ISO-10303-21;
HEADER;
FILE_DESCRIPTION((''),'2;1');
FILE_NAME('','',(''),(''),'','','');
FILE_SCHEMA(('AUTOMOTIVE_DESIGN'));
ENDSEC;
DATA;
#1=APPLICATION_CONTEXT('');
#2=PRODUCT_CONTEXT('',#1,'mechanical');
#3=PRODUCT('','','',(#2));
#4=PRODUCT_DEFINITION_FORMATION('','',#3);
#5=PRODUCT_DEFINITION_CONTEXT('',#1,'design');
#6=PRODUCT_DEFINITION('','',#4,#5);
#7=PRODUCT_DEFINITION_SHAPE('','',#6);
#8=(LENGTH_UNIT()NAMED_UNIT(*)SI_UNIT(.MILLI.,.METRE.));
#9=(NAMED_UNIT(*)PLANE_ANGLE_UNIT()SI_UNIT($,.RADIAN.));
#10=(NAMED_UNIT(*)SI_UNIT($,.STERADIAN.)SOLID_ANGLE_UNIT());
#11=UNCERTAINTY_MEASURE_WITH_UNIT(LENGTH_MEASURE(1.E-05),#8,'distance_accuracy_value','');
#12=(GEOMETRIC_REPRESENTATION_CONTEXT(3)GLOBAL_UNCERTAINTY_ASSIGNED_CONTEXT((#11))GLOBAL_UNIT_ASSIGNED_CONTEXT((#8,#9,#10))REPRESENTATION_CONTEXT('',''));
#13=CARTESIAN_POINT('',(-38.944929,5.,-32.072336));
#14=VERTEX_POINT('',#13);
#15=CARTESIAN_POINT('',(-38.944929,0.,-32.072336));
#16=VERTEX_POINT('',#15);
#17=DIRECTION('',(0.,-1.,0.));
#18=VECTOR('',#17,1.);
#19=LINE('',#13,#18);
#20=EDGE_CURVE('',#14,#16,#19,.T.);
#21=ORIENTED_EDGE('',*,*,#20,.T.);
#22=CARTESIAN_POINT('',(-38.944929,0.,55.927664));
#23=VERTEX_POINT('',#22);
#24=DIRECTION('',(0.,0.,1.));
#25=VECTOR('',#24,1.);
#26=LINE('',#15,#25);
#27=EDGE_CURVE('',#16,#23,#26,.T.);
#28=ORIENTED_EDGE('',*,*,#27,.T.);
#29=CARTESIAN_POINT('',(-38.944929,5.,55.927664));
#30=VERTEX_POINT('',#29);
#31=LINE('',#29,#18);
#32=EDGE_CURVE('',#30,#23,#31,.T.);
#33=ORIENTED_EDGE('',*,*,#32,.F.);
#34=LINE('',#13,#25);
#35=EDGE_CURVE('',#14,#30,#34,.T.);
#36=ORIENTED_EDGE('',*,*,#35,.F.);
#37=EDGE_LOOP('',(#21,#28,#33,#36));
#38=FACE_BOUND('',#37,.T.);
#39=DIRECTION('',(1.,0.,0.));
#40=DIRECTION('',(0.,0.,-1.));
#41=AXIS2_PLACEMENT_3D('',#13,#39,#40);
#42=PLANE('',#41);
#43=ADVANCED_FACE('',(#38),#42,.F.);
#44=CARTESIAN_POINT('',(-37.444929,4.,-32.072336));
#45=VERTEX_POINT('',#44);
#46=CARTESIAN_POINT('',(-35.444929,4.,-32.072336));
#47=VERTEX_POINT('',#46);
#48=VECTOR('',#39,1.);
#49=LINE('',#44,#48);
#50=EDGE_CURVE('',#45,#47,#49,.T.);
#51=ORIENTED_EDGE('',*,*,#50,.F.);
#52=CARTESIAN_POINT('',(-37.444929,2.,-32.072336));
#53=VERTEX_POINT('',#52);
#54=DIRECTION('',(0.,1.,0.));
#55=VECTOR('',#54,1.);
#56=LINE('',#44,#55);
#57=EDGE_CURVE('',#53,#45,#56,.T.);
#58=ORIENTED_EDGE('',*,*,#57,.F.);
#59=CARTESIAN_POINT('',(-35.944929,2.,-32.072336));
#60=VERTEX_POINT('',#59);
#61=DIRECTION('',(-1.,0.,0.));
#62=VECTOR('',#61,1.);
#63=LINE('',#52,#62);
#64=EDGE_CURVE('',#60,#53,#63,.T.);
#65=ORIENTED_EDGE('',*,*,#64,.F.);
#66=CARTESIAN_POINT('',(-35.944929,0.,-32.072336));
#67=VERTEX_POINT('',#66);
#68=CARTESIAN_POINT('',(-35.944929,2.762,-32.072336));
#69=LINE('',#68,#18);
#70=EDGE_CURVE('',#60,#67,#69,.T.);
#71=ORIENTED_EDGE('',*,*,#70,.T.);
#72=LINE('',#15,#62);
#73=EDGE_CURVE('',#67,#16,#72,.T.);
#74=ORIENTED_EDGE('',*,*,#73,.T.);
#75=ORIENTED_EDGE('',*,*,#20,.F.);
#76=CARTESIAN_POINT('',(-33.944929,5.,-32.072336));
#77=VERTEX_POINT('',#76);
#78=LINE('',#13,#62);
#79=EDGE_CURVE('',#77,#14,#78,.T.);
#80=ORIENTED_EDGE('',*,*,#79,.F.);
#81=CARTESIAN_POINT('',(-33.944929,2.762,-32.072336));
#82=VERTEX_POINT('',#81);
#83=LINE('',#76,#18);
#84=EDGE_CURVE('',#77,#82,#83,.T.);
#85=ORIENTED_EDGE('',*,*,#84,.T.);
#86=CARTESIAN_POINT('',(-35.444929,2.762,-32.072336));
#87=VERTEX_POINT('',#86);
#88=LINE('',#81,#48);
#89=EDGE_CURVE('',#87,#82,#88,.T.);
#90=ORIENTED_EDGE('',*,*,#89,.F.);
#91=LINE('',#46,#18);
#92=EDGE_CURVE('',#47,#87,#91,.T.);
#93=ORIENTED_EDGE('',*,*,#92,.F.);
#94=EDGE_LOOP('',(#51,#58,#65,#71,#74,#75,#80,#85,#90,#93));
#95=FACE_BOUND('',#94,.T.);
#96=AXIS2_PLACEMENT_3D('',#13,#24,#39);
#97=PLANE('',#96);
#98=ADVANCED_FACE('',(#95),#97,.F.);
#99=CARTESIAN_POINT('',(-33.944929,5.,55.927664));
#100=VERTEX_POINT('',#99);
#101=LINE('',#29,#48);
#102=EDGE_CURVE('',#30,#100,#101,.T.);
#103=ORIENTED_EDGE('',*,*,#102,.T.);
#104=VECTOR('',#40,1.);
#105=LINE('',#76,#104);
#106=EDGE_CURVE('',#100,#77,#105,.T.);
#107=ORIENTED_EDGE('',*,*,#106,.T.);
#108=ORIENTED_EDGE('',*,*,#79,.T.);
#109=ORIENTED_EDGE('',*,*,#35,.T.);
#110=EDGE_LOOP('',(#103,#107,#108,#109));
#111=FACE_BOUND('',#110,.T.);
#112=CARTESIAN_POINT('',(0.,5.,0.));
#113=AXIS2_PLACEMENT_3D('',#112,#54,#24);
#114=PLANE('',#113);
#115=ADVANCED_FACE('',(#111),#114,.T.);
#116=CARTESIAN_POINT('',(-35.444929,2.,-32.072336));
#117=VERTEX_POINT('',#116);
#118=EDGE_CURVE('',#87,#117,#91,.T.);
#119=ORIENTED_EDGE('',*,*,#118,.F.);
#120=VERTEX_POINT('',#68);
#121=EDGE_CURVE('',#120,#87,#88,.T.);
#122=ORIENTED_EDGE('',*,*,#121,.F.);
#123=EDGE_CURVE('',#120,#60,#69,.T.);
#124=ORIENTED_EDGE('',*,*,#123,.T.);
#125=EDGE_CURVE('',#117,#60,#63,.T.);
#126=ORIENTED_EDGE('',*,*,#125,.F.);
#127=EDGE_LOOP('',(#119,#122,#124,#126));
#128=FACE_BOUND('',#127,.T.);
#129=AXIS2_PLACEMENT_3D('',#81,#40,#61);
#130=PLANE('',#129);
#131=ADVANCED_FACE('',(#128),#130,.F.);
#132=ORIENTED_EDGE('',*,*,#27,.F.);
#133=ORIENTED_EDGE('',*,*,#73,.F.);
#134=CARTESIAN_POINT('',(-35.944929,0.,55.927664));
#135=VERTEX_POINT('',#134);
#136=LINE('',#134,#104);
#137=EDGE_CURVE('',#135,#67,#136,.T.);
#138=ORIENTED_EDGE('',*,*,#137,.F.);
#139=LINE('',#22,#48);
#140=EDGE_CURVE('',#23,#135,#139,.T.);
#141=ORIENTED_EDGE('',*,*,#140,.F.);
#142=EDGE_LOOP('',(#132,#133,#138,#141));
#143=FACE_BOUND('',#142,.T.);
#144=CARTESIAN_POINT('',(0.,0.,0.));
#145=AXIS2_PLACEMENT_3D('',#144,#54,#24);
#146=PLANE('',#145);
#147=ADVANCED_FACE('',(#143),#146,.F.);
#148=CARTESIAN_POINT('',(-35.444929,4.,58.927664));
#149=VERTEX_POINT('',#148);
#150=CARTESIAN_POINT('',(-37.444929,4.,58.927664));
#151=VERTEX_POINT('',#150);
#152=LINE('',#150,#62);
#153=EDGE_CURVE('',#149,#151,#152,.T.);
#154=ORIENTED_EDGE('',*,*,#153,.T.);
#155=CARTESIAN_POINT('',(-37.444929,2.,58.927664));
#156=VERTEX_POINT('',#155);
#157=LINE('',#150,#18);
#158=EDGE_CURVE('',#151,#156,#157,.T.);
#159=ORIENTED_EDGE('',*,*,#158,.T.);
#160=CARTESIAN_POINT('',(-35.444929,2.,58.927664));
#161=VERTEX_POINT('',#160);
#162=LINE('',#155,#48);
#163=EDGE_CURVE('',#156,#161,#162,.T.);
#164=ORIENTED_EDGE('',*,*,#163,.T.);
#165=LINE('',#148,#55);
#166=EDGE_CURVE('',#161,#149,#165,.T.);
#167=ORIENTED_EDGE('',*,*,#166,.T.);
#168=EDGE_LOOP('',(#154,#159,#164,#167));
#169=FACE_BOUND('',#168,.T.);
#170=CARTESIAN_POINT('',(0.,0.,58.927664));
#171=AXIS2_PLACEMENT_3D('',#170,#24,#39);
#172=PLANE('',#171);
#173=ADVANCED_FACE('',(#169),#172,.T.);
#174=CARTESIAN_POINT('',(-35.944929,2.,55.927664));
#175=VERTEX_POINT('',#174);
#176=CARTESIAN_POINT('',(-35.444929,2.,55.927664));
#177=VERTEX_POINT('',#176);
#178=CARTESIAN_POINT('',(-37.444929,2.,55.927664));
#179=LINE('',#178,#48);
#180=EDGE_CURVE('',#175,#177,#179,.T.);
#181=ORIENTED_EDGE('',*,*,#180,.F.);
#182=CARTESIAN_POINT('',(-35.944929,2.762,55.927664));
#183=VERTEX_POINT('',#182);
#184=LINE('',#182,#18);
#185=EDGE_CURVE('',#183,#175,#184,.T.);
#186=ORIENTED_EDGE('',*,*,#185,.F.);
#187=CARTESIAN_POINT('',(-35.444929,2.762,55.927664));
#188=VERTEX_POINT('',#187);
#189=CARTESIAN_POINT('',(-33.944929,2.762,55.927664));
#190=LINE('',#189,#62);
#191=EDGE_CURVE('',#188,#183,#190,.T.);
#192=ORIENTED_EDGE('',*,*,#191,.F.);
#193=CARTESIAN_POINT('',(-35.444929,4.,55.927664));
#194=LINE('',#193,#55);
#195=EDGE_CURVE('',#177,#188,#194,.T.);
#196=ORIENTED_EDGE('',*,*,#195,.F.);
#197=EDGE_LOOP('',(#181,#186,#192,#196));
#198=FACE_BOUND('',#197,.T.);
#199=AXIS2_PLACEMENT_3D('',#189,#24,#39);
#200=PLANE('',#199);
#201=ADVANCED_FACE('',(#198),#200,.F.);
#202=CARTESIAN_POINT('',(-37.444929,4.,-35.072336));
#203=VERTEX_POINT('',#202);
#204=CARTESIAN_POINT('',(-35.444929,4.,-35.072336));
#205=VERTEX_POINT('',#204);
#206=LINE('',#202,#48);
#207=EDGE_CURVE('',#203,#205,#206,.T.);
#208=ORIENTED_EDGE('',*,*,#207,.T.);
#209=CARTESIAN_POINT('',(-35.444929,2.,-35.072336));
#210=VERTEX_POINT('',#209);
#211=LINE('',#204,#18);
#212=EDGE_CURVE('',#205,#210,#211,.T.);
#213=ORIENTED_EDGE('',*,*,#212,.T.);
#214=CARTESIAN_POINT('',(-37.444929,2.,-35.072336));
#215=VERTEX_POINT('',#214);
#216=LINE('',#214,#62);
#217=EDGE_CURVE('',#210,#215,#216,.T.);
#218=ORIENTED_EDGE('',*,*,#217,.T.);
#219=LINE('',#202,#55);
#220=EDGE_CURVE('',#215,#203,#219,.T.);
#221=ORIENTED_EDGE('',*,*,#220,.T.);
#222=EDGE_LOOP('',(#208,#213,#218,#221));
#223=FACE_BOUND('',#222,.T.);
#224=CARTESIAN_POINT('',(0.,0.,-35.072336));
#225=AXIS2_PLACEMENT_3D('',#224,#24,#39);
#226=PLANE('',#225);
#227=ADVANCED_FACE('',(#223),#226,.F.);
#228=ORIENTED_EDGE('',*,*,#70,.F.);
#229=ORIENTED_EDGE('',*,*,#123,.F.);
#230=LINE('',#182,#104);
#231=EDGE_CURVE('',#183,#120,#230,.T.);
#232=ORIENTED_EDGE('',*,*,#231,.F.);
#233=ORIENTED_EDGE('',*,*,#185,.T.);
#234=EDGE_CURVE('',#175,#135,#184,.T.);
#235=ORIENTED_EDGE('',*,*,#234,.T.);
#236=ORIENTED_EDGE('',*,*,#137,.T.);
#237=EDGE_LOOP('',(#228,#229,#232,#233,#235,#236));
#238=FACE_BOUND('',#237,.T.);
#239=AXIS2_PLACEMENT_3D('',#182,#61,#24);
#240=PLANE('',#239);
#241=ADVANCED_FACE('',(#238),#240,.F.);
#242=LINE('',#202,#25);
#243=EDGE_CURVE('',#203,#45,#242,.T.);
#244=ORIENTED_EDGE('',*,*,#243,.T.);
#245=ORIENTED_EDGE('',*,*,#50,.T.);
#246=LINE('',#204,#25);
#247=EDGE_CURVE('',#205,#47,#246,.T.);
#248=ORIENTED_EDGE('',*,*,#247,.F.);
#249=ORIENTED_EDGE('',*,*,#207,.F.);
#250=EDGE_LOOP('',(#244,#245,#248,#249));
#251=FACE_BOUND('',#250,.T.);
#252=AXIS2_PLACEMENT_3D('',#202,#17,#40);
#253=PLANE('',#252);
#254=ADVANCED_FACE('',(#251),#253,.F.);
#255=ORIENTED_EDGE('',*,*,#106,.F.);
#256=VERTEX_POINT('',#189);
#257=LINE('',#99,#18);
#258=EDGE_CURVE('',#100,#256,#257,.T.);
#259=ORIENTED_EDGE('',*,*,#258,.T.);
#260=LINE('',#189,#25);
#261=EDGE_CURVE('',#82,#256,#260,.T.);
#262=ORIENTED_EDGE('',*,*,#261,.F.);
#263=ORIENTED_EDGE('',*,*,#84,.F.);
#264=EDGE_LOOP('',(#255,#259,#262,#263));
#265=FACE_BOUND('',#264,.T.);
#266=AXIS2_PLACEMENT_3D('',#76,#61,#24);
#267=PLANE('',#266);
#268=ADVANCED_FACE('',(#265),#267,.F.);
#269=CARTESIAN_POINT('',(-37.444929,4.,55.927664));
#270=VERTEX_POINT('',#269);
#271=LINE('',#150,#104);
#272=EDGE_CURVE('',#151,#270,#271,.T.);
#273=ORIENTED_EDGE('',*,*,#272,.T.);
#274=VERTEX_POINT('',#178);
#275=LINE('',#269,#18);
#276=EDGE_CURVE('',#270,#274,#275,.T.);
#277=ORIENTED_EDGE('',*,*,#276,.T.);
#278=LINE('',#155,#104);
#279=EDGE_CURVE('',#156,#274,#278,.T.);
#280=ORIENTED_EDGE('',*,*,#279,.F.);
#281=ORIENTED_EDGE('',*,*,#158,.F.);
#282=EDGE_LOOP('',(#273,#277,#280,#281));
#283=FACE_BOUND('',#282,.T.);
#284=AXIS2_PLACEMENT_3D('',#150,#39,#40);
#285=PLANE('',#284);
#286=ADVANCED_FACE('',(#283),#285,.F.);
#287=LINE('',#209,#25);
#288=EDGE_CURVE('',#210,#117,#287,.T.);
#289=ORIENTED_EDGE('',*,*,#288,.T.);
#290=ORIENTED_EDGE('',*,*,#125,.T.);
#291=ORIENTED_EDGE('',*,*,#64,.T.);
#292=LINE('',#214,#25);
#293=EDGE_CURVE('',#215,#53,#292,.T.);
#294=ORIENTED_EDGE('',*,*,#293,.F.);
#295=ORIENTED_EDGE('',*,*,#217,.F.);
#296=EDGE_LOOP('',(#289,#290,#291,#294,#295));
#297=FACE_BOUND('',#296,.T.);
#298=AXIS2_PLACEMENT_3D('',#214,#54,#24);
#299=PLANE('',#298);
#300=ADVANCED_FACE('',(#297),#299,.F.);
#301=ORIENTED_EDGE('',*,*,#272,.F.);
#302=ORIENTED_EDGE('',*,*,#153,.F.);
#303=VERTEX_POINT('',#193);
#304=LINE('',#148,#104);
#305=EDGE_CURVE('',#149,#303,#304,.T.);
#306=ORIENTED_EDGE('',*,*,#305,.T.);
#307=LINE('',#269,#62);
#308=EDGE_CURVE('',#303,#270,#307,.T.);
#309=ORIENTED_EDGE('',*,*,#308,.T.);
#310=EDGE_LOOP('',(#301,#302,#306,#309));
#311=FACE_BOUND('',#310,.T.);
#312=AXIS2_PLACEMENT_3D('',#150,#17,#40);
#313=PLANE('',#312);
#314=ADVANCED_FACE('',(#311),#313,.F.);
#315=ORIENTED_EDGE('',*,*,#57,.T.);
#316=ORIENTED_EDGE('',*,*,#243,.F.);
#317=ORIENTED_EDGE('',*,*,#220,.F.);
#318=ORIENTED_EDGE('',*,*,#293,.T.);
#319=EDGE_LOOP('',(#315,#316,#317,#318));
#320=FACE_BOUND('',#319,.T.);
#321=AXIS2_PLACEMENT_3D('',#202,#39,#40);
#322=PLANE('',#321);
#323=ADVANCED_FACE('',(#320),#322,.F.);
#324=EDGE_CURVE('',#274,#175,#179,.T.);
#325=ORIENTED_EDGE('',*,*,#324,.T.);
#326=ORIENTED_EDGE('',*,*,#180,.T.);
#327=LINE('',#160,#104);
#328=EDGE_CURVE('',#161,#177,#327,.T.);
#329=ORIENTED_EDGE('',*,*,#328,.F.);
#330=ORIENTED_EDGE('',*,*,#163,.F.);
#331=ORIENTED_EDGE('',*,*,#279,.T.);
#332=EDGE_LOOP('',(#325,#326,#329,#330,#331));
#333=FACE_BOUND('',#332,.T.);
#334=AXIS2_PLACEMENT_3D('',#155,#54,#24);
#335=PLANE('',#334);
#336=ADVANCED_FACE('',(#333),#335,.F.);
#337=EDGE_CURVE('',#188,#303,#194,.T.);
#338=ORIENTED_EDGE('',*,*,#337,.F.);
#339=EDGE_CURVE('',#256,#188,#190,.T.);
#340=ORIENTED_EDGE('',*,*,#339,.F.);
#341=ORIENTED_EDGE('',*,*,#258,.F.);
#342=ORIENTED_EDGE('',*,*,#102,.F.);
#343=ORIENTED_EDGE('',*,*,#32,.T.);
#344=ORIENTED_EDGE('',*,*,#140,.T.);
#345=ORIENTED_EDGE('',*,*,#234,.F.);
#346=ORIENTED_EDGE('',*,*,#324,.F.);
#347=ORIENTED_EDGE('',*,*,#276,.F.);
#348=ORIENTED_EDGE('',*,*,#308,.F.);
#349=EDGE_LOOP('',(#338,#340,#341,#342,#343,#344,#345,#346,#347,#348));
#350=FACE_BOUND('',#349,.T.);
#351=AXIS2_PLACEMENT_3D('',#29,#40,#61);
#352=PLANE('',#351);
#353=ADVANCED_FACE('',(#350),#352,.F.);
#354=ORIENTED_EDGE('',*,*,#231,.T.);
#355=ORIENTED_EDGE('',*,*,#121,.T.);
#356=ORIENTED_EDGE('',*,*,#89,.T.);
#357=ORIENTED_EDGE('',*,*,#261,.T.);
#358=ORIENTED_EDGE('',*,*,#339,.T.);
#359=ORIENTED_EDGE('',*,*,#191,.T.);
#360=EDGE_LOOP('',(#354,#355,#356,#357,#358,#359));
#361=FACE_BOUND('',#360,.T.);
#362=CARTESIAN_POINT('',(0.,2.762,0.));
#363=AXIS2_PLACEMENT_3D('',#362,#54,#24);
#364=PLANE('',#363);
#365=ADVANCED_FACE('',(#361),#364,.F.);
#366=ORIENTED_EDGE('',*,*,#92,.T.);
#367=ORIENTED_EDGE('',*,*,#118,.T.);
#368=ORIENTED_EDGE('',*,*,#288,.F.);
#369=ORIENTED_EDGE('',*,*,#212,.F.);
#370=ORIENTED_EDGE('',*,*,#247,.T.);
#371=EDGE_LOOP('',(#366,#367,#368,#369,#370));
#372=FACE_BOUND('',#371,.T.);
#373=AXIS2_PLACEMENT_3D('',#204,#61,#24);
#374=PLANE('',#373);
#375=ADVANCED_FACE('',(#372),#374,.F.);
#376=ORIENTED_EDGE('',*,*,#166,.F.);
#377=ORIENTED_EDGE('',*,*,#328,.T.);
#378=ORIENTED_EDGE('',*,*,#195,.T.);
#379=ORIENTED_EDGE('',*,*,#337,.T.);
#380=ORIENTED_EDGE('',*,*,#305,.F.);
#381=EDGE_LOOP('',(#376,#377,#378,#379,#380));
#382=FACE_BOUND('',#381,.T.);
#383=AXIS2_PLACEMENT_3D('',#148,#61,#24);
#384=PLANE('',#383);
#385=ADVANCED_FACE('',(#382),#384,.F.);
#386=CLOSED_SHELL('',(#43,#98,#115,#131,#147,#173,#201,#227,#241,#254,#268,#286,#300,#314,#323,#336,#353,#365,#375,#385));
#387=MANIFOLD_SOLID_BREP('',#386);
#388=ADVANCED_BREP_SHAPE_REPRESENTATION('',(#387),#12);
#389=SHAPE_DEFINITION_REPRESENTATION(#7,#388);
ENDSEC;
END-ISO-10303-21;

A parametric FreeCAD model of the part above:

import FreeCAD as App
import Part
import Sketcher
Q = App.Units.Quantity

doc = App.newDocument("Part")
body = doc.addObject("PartDesign::Body", "Body")

# Sketch on XZ plane
sketch1 = body.newObject("Sketcher::SketchObject", "Sketch")
sketch1.AttachmentSupport = (doc.getObject("XZ_Plane"), [""])
sketch1.MapMode = "FlatFace"
sketch1.addGeometry(Part.LineSegment(App.Vector(-38.944929, -32.072336, 0), App.Vector(-38.944929, 55.927664, 0)), False)
sketch1.addGeometry(Part.LineSegment(App.Vector(-38.944929, 55.927664, 0), App.Vector(-33.944929, 55.927664, 0)), False)
sketch1.addGeometry(Part.LineSegment(App.Vector(-33.944929, 55.927664, 0), App.Vector(-33.944929, -32.072336, 0)), False)
sketch1.addGeometry(Part.LineSegment(App.Vector(-33.944929, -32.072336, 0), App.Vector(-38.944929, -32.072336, 0)), False)
sketch1.addConstraint(Sketcher.Constraint("Coincident", 0, 2, 1, 1))
sketch1.addConstraint(Sketcher.Constraint("Coincident", 1, 2, 2, 1))
sketch1.addConstraint(Sketcher.Constraint("Coincident", 2, 2, 3, 1))
sketch1.addConstraint(Sketcher.Constraint("Coincident", 3, 2, 0, 1))
sketch1.addConstraint(Sketcher.Constraint("Vertical", 0))
sketch1.addConstraint(Sketcher.Constraint("Horizontal", 1))
sketch1.addConstraint(Sketcher.Constraint("Vertical", 2))
sketch1.addConstraint(Sketcher.Constraint("Horizontal", 3))
sketch1.addConstraint(Sketcher.Constraint("DistanceX", 1, 1, 1, 2, Q("5 mm")))
sketch1.addConstraint(Sketcher.Constraint("DistanceY", 0, 1, 0, 2, Q("88 mm")))
sketch1.addConstraint(Sketcher.Constraint("DistanceX", 0, 2, -1, 1, Q("38.944929 mm")))
sketch1.addConstraint(Sketcher.Constraint("DistanceY", -1, 1, 0, 2, Q("55.927664 mm")))
pad1 = body.newObject("PartDesign::Pad", "Pad")
pad1.Profile = sketch1
pad1.Length = 5
pad1.Reversed = True

# Sketch on XY plane
sketch2 = body.newObject("Sketcher::SketchObject", "Sketch001")
sketch2.AttachmentSupport = (doc.getObject("XY_Plane"), [""])
sketch2.MapMode = "FlatFace"
sketch2.AttachmentOffset = App.Placement(App.Vector(0, 0, 55.927664), App.Rotation())
sketch2.addGeometry(Part.LineSegment(App.Vector(-37.444929, 4, 0), App.Vector(-37.444929, 2, 0)), False)
sketch2.addGeometry(Part.LineSegment(App.Vector(-37.444929, 2, 0), App.Vector(-35.444929, 2, 0)), False)
sketch2.addGeometry(Part.LineSegment(App.Vector(-35.444929, 2, 0), App.Vector(-35.444929, 4, 0)), False)
sketch2.addGeometry(Part.LineSegment(App.Vector(-35.444929, 4, 0), App.Vector(-37.444929, 4, 0)), False)
sketch2.addConstraint(Sketcher.Constraint("Coincident", 0, 2, 1, 1))
sketch2.addConstraint(Sketcher.Constraint("Coincident", 1, 2, 2, 1))
sketch2.addConstraint(Sketcher.Constraint("Coincident", 2, 2, 3, 1))
sketch2.addConstraint(Sketcher.Constraint("Coincident", 3, 2, 0, 1))
sketch2.addConstraint(Sketcher.Constraint("Vertical", 0))
sketch2.addConstraint(Sketcher.Constraint("Horizontal", 1))
sketch2.addConstraint(Sketcher.Constraint("Vertical", 2))
sketch2.addConstraint(Sketcher.Constraint("Horizontal", 3))
sketch2.addConstraint(Sketcher.Constraint("Equal", 3, 0))
sketch2.addConstraint(Sketcher.Constraint("DistanceX", 1, 1, 1, 2, Q("2 mm")))
sketch2.addConstraint(Sketcher.Constraint("DistanceY", -1, 1, 0, 2, Q("2 mm")))
sketch2.addConstraint(Sketcher.Constraint("DistanceX", 0, 2, -1, 1, Q("37.444929 mm")))
pad2 = body.newObject("PartDesign::Pad", "Pad001")
pad2.Profile = sketch2
pad2.Length = 3

# Sketch on XY plane
sketch3 = body.newObject("Sketcher::SketchObject", "Sketch002")
sketch3.AttachmentSupport = (doc.getObject("XY_Plane"), [""])
sketch3.MapMode = "FlatFace"
sketch3.AttachmentOffset = App.Placement(App.Vector(0, 0, -32.072336), App.Rotation())
sketch3.addGeometry(Part.LineSegment(App.Vector(-35.444929, 4, 0), App.Vector(-35.444929, 2, 0)), False)
sketch3.addGeometry(Part.LineSegment(App.Vector(-35.444929, 2, 0), App.Vector(-37.444929, 2, 0)), False)
sketch3.addGeometry(Part.LineSegment(App.Vector(-37.444929, 2, 0), App.Vector(-37.444929, 4, 0)), False)
sketch3.addGeometry(Part.LineSegment(App.Vector(-37.444929, 4, 0), App.Vector(-35.444929, 4, 0)), False)
sketch3.addConstraint(Sketcher.Constraint("Coincident", 0, 2, 1, 1))
sketch3.addConstraint(Sketcher.Constraint("Coincident", 1, 2, 2, 1))
sketch3.addConstraint(Sketcher.Constraint("Coincident", 2, 2, 3, 1))
sketch3.addConstraint(Sketcher.Constraint("Coincident", 3, 2, 0, 1))
sketch3.addConstraint(Sketcher.Constraint("Vertical", 0))
sketch3.addConstraint(Sketcher.Constraint("Horizontal", 1))
sketch3.addConstraint(Sketcher.Constraint("Vertical", 2))
sketch3.addConstraint(Sketcher.Constraint("Horizontal", 3))
sketch3.addConstraint(Sketcher.Constraint("Equal", 3, 0))
sketch3.addConstraint(Sketcher.Constraint("DistanceX", 1, 2, 1, 1, Q("2 mm")))
sketch3.addConstraint(Sketcher.Constraint("DistanceY", -1, 1, 0, 2, Q("2 mm")))
sketch3.addConstraint(Sketcher.Constraint("DistanceX", 0, 2, -1, 1, Q("35.444929 mm")))
pad3 = body.newObject("PartDesign::Pad", "Pad002")
pad3.Profile = sketch3
pad3.Length = 3
pad3.Reversed = True

# Sketch on XZ plane
sketch4 = body.newObject("Sketcher::SketchObject", "Sketch003")
sketch4.AttachmentSupport = (doc.getObject("XZ_Plane"), [""])
sketch4.MapMode = "FlatFace"
sketch4.addGeometry(Part.LineSegment(App.Vector(-35.944929, 55.927664, 0), App.Vector(-35.944929, -32.072336, 0)), False)
sketch4.addGeometry(Part.LineSegment(App.Vector(-35.944929, -32.072336, 0), App.Vector(-33.944929, -32.072336, 0)), False)
sketch4.addGeometry(Part.LineSegment(App.Vector(-33.944929, -32.072336, 0), App.Vector(-33.944929, 55.927664, 0)), False)
sketch4.addGeometry(Part.LineSegment(App.Vector(-33.944929, 55.927664, 0), App.Vector(-35.944929, 55.927664, 0)), False)
sketch4.addConstraint(Sketcher.Constraint("Coincident", 0, 2, 1, 1))
sketch4.addConstraint(Sketcher.Constraint("Coincident", 1, 2, 2, 1))
sketch4.addConstraint(Sketcher.Constraint("Coincident", 2, 2, 3, 1))
sketch4.addConstraint(Sketcher.Constraint("Coincident", 3, 2, 0, 1))
sketch4.addConstraint(Sketcher.Constraint("Vertical", 0))
sketch4.addConstraint(Sketcher.Constraint("Horizontal", 1))
sketch4.addConstraint(Sketcher.Constraint("Vertical", 2))
sketch4.addConstraint(Sketcher.Constraint("Horizontal", 3))
sketch4.addConstraint(Sketcher.Constraint("DistanceX", 1, 1, 1, 2, Q("2 mm")))
sketch4.addConstraint(Sketcher.Constraint("DistanceY", 0, 2, 0, 1, Q("88 mm")))
sketch4.addConstraint(Sketcher.Constraint("DistanceX", 0, 2, -1, 1, Q("35.944929 mm")))
sketch4.addConstraint(Sketcher.Constraint("DistanceY", 0, 2, -1, 1, Q("32.072336 mm")))
pocket1 = body.newObject("PartDesign::Pocket", "Pocket")
pocket1.Profile = sketch4
pocket1.Length = 2.762

doc.recompute()
